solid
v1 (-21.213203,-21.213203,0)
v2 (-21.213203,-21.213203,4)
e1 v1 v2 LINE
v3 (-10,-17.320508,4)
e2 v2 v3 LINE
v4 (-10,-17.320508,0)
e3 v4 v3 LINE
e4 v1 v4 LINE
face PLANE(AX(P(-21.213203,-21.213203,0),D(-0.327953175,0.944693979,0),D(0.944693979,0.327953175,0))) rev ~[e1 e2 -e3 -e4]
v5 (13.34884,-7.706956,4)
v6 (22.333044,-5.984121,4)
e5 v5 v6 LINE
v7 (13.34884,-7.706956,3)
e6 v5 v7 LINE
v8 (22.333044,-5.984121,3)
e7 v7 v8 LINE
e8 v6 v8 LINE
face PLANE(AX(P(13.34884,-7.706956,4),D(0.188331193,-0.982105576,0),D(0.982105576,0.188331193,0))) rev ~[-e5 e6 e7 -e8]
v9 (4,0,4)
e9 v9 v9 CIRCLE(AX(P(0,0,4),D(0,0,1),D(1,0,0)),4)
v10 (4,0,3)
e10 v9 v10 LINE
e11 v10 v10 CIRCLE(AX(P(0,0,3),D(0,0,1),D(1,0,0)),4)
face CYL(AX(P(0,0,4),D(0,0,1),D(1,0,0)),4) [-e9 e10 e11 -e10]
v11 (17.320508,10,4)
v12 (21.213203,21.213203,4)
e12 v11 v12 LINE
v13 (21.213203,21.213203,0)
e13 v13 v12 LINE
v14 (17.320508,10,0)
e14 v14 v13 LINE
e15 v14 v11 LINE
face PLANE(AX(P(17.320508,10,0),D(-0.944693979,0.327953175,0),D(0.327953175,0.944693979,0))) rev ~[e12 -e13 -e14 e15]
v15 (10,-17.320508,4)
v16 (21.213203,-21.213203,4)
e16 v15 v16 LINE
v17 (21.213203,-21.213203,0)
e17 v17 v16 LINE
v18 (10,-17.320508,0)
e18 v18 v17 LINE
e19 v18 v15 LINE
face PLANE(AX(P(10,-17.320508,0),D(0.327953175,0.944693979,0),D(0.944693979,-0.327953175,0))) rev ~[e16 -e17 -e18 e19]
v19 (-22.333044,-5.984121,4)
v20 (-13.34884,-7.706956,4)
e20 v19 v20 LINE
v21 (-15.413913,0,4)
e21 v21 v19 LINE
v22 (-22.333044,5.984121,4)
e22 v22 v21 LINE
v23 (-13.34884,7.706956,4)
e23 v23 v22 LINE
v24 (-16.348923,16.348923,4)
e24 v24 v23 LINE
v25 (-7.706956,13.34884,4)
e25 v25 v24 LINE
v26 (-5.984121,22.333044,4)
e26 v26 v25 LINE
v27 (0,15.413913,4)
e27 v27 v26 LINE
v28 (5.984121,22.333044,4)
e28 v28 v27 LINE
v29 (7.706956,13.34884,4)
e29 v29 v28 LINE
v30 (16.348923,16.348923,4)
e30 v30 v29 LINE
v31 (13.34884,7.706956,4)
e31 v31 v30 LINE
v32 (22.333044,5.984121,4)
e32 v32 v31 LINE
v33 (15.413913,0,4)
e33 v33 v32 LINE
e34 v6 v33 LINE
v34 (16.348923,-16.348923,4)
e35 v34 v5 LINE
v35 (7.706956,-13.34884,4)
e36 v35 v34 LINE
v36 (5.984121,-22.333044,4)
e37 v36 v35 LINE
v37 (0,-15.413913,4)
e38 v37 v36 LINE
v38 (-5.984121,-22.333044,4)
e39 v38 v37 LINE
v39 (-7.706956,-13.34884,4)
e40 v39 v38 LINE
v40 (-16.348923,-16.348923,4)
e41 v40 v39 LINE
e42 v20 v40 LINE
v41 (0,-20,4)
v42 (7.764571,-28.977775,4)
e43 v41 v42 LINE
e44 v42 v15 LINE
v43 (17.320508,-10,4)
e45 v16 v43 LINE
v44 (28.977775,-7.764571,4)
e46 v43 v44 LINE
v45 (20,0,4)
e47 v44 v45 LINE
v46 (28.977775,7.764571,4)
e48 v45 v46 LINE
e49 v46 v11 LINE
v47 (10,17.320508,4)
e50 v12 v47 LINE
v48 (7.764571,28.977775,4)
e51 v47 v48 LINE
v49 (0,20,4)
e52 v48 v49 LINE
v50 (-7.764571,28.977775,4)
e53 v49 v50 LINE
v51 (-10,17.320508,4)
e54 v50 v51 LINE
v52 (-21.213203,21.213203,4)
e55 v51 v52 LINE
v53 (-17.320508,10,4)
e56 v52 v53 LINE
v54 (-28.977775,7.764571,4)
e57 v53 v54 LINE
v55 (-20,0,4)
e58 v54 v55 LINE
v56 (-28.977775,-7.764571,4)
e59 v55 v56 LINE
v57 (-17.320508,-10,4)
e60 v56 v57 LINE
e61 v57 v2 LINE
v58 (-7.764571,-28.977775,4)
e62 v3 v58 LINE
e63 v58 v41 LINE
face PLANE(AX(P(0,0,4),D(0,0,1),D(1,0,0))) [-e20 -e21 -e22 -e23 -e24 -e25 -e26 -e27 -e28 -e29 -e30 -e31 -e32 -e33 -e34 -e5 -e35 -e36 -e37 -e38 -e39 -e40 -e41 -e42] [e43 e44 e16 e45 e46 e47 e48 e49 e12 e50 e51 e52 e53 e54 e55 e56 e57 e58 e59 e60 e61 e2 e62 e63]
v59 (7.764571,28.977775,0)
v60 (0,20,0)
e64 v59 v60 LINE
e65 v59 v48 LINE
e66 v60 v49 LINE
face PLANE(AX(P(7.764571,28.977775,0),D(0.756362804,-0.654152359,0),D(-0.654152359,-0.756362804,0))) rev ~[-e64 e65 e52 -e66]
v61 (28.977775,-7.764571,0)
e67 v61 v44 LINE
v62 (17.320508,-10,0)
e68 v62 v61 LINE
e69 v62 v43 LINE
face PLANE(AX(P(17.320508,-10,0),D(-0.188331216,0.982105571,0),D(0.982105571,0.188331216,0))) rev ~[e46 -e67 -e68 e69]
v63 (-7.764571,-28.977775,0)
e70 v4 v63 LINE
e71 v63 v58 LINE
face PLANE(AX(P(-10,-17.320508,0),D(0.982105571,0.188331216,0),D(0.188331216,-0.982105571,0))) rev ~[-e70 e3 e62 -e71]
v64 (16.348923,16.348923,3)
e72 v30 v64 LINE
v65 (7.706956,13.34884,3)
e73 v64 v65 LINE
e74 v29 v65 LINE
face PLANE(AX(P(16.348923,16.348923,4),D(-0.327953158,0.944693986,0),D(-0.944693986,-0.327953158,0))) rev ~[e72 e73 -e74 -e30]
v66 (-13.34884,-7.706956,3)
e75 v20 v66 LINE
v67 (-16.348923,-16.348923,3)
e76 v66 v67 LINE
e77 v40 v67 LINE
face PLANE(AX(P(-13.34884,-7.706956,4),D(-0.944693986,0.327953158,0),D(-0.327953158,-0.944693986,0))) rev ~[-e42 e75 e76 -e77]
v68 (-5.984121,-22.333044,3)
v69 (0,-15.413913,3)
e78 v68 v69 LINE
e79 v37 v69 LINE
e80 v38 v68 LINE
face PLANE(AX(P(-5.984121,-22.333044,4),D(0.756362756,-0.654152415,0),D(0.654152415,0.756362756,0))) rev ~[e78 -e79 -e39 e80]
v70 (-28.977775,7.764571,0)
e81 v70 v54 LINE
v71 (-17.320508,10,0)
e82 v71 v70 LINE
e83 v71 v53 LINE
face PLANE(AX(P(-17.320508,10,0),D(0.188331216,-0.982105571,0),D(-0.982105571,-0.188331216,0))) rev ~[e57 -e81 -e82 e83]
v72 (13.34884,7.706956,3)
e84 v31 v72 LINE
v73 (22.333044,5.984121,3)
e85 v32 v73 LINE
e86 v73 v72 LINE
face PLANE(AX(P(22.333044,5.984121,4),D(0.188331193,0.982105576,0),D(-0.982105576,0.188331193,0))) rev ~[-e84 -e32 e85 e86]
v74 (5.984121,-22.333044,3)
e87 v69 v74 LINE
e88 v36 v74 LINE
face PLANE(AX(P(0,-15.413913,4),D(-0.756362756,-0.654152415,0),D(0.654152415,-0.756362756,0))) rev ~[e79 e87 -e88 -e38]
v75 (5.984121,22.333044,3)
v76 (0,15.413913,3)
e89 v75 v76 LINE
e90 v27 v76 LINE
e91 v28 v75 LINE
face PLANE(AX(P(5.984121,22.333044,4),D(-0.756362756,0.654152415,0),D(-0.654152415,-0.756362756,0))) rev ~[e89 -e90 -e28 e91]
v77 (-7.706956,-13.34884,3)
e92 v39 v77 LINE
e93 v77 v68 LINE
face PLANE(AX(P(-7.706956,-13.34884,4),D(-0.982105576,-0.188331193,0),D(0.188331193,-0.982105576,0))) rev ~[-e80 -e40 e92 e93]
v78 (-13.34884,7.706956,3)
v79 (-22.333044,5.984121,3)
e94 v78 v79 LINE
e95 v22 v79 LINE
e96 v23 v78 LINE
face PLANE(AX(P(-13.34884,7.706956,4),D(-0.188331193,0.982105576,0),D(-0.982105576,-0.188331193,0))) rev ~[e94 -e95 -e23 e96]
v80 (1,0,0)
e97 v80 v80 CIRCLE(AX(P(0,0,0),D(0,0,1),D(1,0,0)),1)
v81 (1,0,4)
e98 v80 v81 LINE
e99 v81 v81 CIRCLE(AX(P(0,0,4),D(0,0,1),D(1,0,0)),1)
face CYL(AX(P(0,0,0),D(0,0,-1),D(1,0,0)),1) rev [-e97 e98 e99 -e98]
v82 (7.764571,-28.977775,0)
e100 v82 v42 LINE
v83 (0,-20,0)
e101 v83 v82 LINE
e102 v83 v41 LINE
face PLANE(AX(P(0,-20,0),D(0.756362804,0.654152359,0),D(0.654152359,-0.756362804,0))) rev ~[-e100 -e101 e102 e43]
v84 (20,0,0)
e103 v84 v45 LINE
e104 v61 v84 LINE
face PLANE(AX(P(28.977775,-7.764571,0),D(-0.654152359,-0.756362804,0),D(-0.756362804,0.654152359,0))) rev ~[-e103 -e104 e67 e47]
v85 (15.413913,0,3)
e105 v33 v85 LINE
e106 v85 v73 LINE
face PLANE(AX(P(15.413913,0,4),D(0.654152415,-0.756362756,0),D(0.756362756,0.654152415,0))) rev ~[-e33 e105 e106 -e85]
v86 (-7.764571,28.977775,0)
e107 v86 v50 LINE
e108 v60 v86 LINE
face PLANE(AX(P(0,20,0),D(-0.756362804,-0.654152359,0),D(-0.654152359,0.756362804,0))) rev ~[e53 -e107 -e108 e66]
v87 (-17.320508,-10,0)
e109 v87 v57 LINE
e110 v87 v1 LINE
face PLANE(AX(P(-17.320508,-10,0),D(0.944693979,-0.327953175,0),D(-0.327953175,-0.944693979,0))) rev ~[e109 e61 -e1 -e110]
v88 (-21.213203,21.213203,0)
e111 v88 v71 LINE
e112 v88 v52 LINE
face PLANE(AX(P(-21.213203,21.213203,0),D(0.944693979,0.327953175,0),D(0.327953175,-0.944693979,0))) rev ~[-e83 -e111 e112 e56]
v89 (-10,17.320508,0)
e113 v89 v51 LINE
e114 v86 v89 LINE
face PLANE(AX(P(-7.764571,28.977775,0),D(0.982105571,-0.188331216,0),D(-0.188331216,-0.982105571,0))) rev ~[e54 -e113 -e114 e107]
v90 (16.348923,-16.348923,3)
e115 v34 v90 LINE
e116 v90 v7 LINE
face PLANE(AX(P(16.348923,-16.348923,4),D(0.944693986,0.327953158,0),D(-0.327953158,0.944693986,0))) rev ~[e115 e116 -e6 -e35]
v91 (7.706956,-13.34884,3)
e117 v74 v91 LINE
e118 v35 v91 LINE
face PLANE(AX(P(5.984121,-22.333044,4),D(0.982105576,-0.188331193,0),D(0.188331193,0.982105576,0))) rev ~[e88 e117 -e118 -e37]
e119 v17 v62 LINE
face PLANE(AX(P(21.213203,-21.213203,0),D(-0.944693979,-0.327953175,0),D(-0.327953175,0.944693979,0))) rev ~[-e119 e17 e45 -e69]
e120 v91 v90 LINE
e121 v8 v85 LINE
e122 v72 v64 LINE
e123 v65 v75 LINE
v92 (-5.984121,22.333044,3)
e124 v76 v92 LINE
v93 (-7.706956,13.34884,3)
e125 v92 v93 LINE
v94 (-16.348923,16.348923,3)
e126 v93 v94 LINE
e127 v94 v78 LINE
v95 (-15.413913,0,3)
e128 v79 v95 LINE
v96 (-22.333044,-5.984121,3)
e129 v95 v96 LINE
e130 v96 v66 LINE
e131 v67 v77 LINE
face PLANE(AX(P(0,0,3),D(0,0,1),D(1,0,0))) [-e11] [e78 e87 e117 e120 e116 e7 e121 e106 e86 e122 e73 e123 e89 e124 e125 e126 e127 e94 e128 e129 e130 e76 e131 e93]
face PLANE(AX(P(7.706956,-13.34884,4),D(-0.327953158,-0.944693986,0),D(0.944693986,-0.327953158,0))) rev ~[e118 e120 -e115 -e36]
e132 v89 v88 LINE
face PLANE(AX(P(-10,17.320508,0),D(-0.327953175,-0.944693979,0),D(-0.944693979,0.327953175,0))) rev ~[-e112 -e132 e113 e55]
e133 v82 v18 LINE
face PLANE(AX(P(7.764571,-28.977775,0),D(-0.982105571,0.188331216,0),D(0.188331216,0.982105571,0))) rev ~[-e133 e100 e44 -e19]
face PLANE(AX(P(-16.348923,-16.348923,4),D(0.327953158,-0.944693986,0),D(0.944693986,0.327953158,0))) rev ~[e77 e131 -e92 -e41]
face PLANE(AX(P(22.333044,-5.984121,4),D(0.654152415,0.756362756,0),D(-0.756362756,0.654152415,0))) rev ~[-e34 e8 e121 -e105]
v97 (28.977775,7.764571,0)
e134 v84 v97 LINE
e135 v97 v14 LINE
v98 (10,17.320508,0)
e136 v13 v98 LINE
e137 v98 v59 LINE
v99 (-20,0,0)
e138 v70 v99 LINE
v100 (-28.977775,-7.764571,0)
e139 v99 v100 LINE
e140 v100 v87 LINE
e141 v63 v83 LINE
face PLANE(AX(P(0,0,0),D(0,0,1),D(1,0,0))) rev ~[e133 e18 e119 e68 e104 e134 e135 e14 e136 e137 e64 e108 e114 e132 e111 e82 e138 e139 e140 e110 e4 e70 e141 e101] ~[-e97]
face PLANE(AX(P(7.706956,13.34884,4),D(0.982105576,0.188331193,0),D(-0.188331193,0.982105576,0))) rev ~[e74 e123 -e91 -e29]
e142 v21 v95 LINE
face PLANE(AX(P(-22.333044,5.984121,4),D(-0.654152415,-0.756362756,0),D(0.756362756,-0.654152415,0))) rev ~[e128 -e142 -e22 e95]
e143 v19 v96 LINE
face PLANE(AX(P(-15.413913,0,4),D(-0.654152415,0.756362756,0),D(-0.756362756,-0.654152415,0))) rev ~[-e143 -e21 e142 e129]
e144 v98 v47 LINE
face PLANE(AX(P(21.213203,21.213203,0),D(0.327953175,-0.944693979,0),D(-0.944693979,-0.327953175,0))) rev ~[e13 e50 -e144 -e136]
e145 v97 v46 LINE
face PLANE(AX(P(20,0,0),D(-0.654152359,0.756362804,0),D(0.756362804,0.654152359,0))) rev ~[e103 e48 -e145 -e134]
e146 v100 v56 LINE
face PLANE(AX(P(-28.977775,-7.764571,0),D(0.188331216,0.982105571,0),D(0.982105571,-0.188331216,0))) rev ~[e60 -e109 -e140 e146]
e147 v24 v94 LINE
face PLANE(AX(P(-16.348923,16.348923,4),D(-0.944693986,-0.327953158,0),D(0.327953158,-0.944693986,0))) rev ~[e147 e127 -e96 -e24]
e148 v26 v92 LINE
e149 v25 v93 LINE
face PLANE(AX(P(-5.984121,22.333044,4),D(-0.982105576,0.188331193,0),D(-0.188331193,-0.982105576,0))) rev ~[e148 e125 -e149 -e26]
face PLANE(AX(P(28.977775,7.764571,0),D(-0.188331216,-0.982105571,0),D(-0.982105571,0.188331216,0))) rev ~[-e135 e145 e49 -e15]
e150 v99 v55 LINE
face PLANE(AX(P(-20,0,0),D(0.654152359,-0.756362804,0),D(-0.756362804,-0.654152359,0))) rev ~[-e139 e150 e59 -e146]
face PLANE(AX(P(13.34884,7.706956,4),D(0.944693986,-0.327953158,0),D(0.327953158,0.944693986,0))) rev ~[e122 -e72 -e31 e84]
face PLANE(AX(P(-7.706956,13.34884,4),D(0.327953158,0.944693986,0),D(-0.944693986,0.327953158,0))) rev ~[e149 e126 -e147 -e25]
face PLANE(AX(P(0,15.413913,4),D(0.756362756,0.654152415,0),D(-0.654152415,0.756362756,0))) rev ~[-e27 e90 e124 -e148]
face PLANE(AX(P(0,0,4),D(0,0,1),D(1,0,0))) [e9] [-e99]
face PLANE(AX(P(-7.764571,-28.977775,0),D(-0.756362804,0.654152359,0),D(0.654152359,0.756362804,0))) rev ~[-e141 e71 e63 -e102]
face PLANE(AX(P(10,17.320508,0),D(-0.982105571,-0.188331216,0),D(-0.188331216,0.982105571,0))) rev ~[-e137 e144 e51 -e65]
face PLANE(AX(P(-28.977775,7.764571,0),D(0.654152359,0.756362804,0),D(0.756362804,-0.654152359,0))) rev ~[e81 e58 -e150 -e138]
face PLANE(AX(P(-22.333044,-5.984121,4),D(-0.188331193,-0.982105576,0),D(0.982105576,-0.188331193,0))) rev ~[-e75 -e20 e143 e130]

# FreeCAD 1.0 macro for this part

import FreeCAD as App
import Part
import Sketcher
from FreeCAD import Vector
Q = App.Units.Quantity

doc = App.newDocument("Part")
body = doc.addObject("PartDesign::Body", "Body")

# Sketch on XY plane
sketch1 = doc.addObject("Sketcher::SketchObject", "Sketch")
body.addObject(sketch1)
sketch1.AttachmentSupport = (doc.XY_Plane, [""])
sketch1.MapMode = "FlatFace"
sketch1.addGeometry([
    Part.LineSegment(Vector(7.8, 29, 0), Vector(0, 20, 0)),  # 0
    Part.LineSegment(Vector(0, 20, 0), Vector(-7.8, 29, 0)),  # 1
    Part.LineSegment(Vector(-7.8, 29, 0), Vector(-10, 17.3, 0)),  # 2
    Part.LineSegment(Vector(-10, 17.3, 0), Vector(-21.2, 21.2, 0)),  # 3
    Part.LineSegment(Vector(-21.2, 21.2, 0), Vector(-17.3, 10, 0)),  # 4
    Part.LineSegment(Vector(-17.3, 10, 0), Vector(-29, 7.8, 0)),  # 5
    Part.LineSegment(Vector(-29, 7.8, 0), Vector(-20, 0, 0)),  # 6
    Part.LineSegment(Vector(-20, 0, 0), Vector(-29, -7.8, 0)),  # 7
    Part.LineSegment(Vector(-29, -7.8, 0), Vector(-17.3, -10, 0)),  # 8
    Part.LineSegment(Vector(-17.3, -10, 0), Vector(-21.2, -21.2, 0)),  # 9
    Part.LineSegment(Vector(-21.2, -21.2, 0), Vector(-10, -17.3, 0)),  # 10
    Part.LineSegment(Vector(-10, -17.3, 0), Vector(-7.8, -29, 0)),  # 11
    Part.LineSegment(Vector(-7.8, -29, 0), Vector(0, -20, 0)),  # 12
    Part.LineSegment(Vector(0, -20, 0), Vector(7.8, -29, 0)),  # 13
    Part.LineSegment(Vector(7.8, -29, 0), Vector(10, -17.3, 0)),  # 14
    Part.LineSegment(Vector(10, -17.3, 0), Vector(21.2, -21.2, 0)),  # 15
    Part.LineSegment(Vector(21.2, -21.2, 0), Vector(17.3, -10, 0)),  # 16
    Part.LineSegment(Vector(17.3, -10, 0), Vector(29, -7.8, 0)),  # 17
    Part.LineSegment(Vector(29, -7.8, 0), Vector(20, 0, 0)),  # 18
    Part.LineSegment(Vector(20, 0, 0), Vector(29, 7.8, 0)),  # 19
    Part.LineSegment(Vector(29, 7.8, 0), Vector(17.3, 10, 0)),  # 20
    Part.LineSegment(Vector(17.3, 10, 0), Vector(21.2, 21.2, 0)),  # 21
    Part.LineSegment(Vector(21.2, 21.2, 0), Vector(10, 17.3, 0)),  # 22
    Part.LineSegment(Vector(10, 17.3, 0), Vector(7.8, 29, 0)),  # 23
    Part.Circle(Vector(0, 0, 0), Vector(0, 0, 1), 1),  # 24
], False)
sketch1.addConstraint([
    Sketcher.Constraint("Coincident", 0, 2, 1, 1),
    Sketcher.Constraint("Coincident", 1, 2, 2, 1),
    Sketcher.Constraint("Coincident", 2, 2, 3, 1),
    Sketcher.Constraint("Coincident", 3, 2, 4, 1),
    Sketcher.Constraint("Coincident", 4, 2, 5, 1),
    Sketcher.Constraint("Coincident", 5, 2, 6, 1),
    Sketcher.Constraint("Coincident", 6, 2, 7, 1),
    Sketcher.Constraint("Coincident", 7, 2, 8, 1),
    Sketcher.Constraint("Coincident", 8, 2, 9, 1),
    Sketcher.Constraint("Coincident", 9, 2, 10, 1),
    Sketcher.Constraint("Coincident", 10, 2, 11, 1),
    Sketcher.Constraint("Coincident", 11, 2, 12, 1),
    Sketcher.Constraint("Coincident", 12, 2, 13, 1),
    Sketcher.Constraint("Coincident", 13, 2, 14, 1),
    Sketcher.Constraint("Coincident", 14, 2, 15, 1),
    Sketcher.Constraint("Coincident", 15, 2, 16, 1),
    Sketcher.Constraint("Coincident", 16, 2, 17, 1),
    Sketcher.Constraint("Coincident", 17, 2, 18, 1),
    Sketcher.Constraint("Coincident", 18, 2, 19, 1),
    Sketcher.Constraint("Coincident", 19, 2, 20, 1),
    Sketcher.Constraint("Coincident", 20, 2, 21, 1),
    Sketcher.Constraint("Coincident", 21, 2, 22, 1),
    Sketcher.Constraint("Coincident", 22, 2, 23, 1),
    Sketcher.Constraint("Coincident", 23, 2, 0, 1),
    Sketcher.Constraint("Coincident", 24, 3, -1, 1),
    Sketcher.Constraint("Symmetric", 0, 2, 12, 2, -1, 1),
    Sketcher.Constraint("Symmetric", 1, 2, 13, 2, -1, 1),
    Sketcher.Constraint("Symmetric", 2, 2, 14, 2, -1, 1),
    Sketcher.Constraint("Symmetric", 3, 2, 15, 2, -1, 1),
    Sketcher.Constraint("Symmetric", 4, 2, 16, 2, -1, 1),
    Sketcher.Constraint("Symmetric", 5, 2, 17, 2, -1, 1),
    Sketcher.Constraint("Symmetric", 6, 2, 18, 2, -1, 1),
    Sketcher.Constraint("Symmetric", 7, 2, 19, 2, -1, 1),
    Sketcher.Constraint("Symmetric", 8, 2, 20, 2, -1, 1),
    Sketcher.Constraint("Symmetric", 9, 2, 21, 2, -1, 1),
    Sketcher.Constraint("Symmetric", 10, 2, 22, 2, -1, 1),
    Sketcher.Constraint("Symmetric", 11, 2, 23, 2, -1, 1),
    Sketcher.Constraint("Symmetric", 11, 2, 13, 2, -2),
    Sketcher.Constraint("Symmetric", 10, 2, 14, 2, -2),
    Sketcher.Constraint("Symmetric", 9, 2, 15, 2, -2),
    Sketcher.Constraint("Symmetric", 8, 2, 16, 2, -2),
    Sketcher.Constraint("Symmetric", 7, 2, 17, 2, -2),
    Sketcher.Constraint("PointOnObject", 0, 2, -2),
    Sketcher.Constraint("PointOnObject", 6, 2, -1),
    Sketcher.Constraint("Perpendicular", 0, 6),
    Sketcher.Constraint("Perpendicular", 2, 8),
    Sketcher.Constraint("Perpendicular", 3, 9),
    Sketcher.Constraint("Equal", 1, 2),
    Sketcher.Constraint("Equal", 2, 3),
    Sketcher.Constraint("Equal", 3, 4),
    Sketcher.Constraint("Equal", 4, 5),
    Sketcher.Constraint("Equal", 5, 6),
    Sketcher.Constraint("Diameter", 24, Q("2 mm")),
    Sketcher.Constraint("DistanceY", -1, 1, 0, 2, Q("20 mm")),
    Sketcher.Constraint("DistanceX", 2, 2, -1, 1, Q("10 mm")),
    Sketcher.Constraint("DistanceX", 1, 2, -1, 1, Q("7.764571 mm")),
    Sketcher.Constraint("DistanceY", -1, 1, 2, 2, Q("17.320508 mm")),
])
pad1 = doc.addObject("PartDesign::Pad", "Pad")
body.addObject(pad1)
pad1.Profile = sketch1
pad1.Length = 4

# Sketch on XY plane
sketch2 = doc.addObject("Sketcher::SketchObject", "Sketch001")
body.addObject(sketch2)
sketch2.AttachmentSupport = (doc.XY_Plane, [""])
sketch2.MapMode = "FlatFace"
sketch2.AttachmentOffset = App.Placement(Vector(0, 0, 4), App.Rotation())
sketch2.addGeometry([
    Part.LineSegment(Vector(-13.3, -7.7, 0), Vector(-16.3, -16.3, 0)),  # 0
    Part.LineSegment(Vector(-16.3, -16.3, 0), Vector(-7.7, -13.3, 0)),  # 1
    Part.LineSegment(Vector(-7.7, -13.3, 0), Vector(-6, -22.3, 0)),  # 2
    Part.LineSegment(Vector(-6, -22.3, 0), Vector(0, -15.4, 0)),  # 3
    Part.LineSegment(Vector(0, -15.4, 0), Vector(6, -22.3, 0)),  # 4
    Part.LineSegment(Vector(6, -22.3, 0), Vector(7.7, -13.3, 0)),  # 5
    Part.LineSegment(Vector(7.7, -13.3, 0), Vector(16.3, -16.3, 0)),  # 6
    Part.LineSegment(Vector(16.3, -16.3, 0), Vector(13.3, -7.7, 0)),  # 7
    Part.LineSegment(Vector(13.3, -7.7, 0), Vector(22.3, -6, 0)),  # 8
    Part.LineSegment(Vector(22.3, -6, 0), Vector(15.4, 0, 0)),  # 9
    Part.LineSegment(Vector(15.4, 0, 0), Vector(22.3, 6, 0)),  # 10
    Part.LineSegment(Vector(22.3, 6, 0), Vector(13.3, 7.7, 0)),  # 11
    Part.LineSegment(Vector(13.3, 7.7, 0), Vector(16.3, 16.3, 0)),  # 12
    Part.LineSegment(Vector(16.3, 16.3, 0), Vector(7.7, 13.3, 0)),  # 13
    Part.LineSegment(Vector(7.7, 13.3, 0), Vector(6, 22.3, 0)),  # 14
    Part.LineSegment(Vector(6, 22.3, 0), Vector(0, 15.4, 0)),  # 15
    Part.LineSegment(Vector(0, 15.4, 0), Vector(-6, 22.3, 0)),  # 16
    Part.LineSegment(Vector(-6, 22.3, 0), Vector(-7.7, 13.3, 0)),  # 17
    Part.LineSegment(Vector(-7.7, 13.3, 0), Vector(-16.3, 16.3, 0)),  # 18
    Part.LineSegment(Vector(-16.3, 16.3, 0), Vector(-13.3, 7.7, 0)),  # 19
    Part.LineSegment(Vector(-13.3, 7.7, 0), Vector(-22.3, 6, 0)),  # 20
    Part.LineSegment(Vector(-22.3, 6, 0), Vector(-15.4, 0, 0)),  # 21
    Part.LineSegment(Vector(-15.4, 0, 0), Vector(-22.3, -6, 0)),  # 22
    Part.LineSegment(Vector(-22.3, -6, 0), Vector(-13.3, -7.7, 0)),  # 23
    Part.Circle(Vector(0, 0, 0), Vector(0, 0, 1), 4),  # 24
], False)
sketch2.addConstraint([
    Sketcher.Constraint("Coincident", 0, 2, 1, 1),
    Sketcher.Constraint("Coincident", 1, 2, 2, 1),
    Sketcher.Constraint("Coincident", 2, 2, 3, 1),
    Sketcher.Constraint("Coincident", 3, 2, 4, 1),
    Sketcher.Constraint("Coincident", 4, 2, 5, 1),
    Sketcher.Constraint("Coincident", 5, 2, 6, 1),
    Sketcher.Constraint("Coincident", 6, 2, 7, 1),
    Sketcher.Constraint("Coincident", 7, 2, 8, 1),
    Sketcher.Constraint("Coincident", 8, 2, 9, 1),
    Sketcher.Constraint("Coincident", 9, 2, 10, 1),
    Sketcher.Constraint("Coincident", 10, 2, 11, 1),
    Sketcher.Constraint("Coincident", 11, 2, 12, 1),
    Sketcher.Constraint("Coincident", 12, 2, 13, 1),
    Sketcher.Constraint("Coincident", 13, 2, 14, 1),
    Sketcher.Constraint("Coincident", 14, 2, 15, 1),
    Sketcher.Constraint("Coincident", 15, 2, 16, 1),
    Sketcher.Constraint("Coincident", 16, 2, 17, 1),
    Sketcher.Constraint("Coincident", 17, 2, 18, 1),
    Sketcher.Constraint("Coincident", 18, 2, 19, 1),
    Sketcher.Constraint("Coincident", 19, 2, 20, 1),
    Sketcher.Constraint("Coincident", 20, 2, 21, 1),
    Sketcher.Constraint("Coincident", 21, 2, 22, 1),
    Sketcher.Constraint("Coincident", 22, 2, 23, 1),
    Sketcher.Constraint("Coincident", 23, 2, 0, 1),
    Sketcher.Constraint("Coincident", 24, 3, -1, 1),
    Sketcher.Constraint("Symmetric", 0, 2, 12, 2, -1, 1),
    Sketcher.Constraint("Symmetric", 1, 2, 13, 2, -1, 1),
    Sketcher.Constraint("Symmetric", 2, 2, 14, 2, -1, 1),
    Sketcher.Constraint("Symmetric", 3, 2, 15, 2, -1, 1),
    Sketcher.Constraint("Symmetric", 4, 2, 16, 2, -1, 1),
    Sketcher.Constraint("Symmetric", 5, 2, 17, 2, -1, 1),
    Sketcher.Constraint("Symmetric", 6, 2, 18, 2, -1, 1),
    Sketcher.Constraint("Symmetric", 7, 2, 19, 2, -1, 1),
    Sketcher.Constraint("Symmetric", 8, 2, 20, 2, -1, 1),
    Sketcher.Constraint("Symmetric", 9, 2, 21, 2, -1, 1),
    Sketcher.Constraint("Symmetric", 10, 2, 22, 2, -1, 1),
    Sketcher.Constraint("Symmetric", 11, 2, 23, 2, -1, 1),
    Sketcher.Constraint("Symmetric", 2, 2, 4, 2, -2),
    Sketcher.Constraint("Symmetric", 1, 2, 5, 2, -2),
    Sketcher.Constraint("Symmetric", 0, 2, 6, 2, -2),
    Sketcher.Constraint("Symmetric", 11, 2, 19, 2, -2),
    Sketcher.Constraint("Symmetric", 10, 2, 20, 2, -2),
    Sketcher.Constraint("PointOnObject", 3, 2, -2),
    Sketcher.Constraint("PointOnObject", 9, 2, -1),
    Sketcher.Constraint("Perpendicular", 0, 6),
    Sketcher.Constraint("Perpendicular", 2, 8),
    Sketcher.Constraint("Perpendicular", 3, 9),
    Sketcher.Constraint("Equal", 0, 1),
    Sketcher.Constraint("Equal", 1, 2),
    Sketcher.Constraint("Equal", 2, 3),
    Sketcher.Constraint("Equal", 7, 8),
    Sketcher.Constraint("Equal", 8, 9),
    Sketcher.Constraint("Diameter", 24, Q("8 mm")),
    Sketcher.Constraint("Distance", 0, Q("9.147901 mm")),
    Sketcher.Constraint("DistanceX", 0, 2, 2, 2, Q("10.364802 mm")),
    Sketcher.Constraint("DistanceY", 1, 2, -1, 1, Q("13.34884 mm")),
    Sketcher.Constraint("DistanceX", 2, 2, -1, 1, Q("5.984121 mm")),
])
pocket1 = doc.addObject("PartDesign::Pocket", "Pocket")
body.addObject(pocket1)
pocket1.Profile = sketch2
pocket1.Length = 1

doc.recompute()
